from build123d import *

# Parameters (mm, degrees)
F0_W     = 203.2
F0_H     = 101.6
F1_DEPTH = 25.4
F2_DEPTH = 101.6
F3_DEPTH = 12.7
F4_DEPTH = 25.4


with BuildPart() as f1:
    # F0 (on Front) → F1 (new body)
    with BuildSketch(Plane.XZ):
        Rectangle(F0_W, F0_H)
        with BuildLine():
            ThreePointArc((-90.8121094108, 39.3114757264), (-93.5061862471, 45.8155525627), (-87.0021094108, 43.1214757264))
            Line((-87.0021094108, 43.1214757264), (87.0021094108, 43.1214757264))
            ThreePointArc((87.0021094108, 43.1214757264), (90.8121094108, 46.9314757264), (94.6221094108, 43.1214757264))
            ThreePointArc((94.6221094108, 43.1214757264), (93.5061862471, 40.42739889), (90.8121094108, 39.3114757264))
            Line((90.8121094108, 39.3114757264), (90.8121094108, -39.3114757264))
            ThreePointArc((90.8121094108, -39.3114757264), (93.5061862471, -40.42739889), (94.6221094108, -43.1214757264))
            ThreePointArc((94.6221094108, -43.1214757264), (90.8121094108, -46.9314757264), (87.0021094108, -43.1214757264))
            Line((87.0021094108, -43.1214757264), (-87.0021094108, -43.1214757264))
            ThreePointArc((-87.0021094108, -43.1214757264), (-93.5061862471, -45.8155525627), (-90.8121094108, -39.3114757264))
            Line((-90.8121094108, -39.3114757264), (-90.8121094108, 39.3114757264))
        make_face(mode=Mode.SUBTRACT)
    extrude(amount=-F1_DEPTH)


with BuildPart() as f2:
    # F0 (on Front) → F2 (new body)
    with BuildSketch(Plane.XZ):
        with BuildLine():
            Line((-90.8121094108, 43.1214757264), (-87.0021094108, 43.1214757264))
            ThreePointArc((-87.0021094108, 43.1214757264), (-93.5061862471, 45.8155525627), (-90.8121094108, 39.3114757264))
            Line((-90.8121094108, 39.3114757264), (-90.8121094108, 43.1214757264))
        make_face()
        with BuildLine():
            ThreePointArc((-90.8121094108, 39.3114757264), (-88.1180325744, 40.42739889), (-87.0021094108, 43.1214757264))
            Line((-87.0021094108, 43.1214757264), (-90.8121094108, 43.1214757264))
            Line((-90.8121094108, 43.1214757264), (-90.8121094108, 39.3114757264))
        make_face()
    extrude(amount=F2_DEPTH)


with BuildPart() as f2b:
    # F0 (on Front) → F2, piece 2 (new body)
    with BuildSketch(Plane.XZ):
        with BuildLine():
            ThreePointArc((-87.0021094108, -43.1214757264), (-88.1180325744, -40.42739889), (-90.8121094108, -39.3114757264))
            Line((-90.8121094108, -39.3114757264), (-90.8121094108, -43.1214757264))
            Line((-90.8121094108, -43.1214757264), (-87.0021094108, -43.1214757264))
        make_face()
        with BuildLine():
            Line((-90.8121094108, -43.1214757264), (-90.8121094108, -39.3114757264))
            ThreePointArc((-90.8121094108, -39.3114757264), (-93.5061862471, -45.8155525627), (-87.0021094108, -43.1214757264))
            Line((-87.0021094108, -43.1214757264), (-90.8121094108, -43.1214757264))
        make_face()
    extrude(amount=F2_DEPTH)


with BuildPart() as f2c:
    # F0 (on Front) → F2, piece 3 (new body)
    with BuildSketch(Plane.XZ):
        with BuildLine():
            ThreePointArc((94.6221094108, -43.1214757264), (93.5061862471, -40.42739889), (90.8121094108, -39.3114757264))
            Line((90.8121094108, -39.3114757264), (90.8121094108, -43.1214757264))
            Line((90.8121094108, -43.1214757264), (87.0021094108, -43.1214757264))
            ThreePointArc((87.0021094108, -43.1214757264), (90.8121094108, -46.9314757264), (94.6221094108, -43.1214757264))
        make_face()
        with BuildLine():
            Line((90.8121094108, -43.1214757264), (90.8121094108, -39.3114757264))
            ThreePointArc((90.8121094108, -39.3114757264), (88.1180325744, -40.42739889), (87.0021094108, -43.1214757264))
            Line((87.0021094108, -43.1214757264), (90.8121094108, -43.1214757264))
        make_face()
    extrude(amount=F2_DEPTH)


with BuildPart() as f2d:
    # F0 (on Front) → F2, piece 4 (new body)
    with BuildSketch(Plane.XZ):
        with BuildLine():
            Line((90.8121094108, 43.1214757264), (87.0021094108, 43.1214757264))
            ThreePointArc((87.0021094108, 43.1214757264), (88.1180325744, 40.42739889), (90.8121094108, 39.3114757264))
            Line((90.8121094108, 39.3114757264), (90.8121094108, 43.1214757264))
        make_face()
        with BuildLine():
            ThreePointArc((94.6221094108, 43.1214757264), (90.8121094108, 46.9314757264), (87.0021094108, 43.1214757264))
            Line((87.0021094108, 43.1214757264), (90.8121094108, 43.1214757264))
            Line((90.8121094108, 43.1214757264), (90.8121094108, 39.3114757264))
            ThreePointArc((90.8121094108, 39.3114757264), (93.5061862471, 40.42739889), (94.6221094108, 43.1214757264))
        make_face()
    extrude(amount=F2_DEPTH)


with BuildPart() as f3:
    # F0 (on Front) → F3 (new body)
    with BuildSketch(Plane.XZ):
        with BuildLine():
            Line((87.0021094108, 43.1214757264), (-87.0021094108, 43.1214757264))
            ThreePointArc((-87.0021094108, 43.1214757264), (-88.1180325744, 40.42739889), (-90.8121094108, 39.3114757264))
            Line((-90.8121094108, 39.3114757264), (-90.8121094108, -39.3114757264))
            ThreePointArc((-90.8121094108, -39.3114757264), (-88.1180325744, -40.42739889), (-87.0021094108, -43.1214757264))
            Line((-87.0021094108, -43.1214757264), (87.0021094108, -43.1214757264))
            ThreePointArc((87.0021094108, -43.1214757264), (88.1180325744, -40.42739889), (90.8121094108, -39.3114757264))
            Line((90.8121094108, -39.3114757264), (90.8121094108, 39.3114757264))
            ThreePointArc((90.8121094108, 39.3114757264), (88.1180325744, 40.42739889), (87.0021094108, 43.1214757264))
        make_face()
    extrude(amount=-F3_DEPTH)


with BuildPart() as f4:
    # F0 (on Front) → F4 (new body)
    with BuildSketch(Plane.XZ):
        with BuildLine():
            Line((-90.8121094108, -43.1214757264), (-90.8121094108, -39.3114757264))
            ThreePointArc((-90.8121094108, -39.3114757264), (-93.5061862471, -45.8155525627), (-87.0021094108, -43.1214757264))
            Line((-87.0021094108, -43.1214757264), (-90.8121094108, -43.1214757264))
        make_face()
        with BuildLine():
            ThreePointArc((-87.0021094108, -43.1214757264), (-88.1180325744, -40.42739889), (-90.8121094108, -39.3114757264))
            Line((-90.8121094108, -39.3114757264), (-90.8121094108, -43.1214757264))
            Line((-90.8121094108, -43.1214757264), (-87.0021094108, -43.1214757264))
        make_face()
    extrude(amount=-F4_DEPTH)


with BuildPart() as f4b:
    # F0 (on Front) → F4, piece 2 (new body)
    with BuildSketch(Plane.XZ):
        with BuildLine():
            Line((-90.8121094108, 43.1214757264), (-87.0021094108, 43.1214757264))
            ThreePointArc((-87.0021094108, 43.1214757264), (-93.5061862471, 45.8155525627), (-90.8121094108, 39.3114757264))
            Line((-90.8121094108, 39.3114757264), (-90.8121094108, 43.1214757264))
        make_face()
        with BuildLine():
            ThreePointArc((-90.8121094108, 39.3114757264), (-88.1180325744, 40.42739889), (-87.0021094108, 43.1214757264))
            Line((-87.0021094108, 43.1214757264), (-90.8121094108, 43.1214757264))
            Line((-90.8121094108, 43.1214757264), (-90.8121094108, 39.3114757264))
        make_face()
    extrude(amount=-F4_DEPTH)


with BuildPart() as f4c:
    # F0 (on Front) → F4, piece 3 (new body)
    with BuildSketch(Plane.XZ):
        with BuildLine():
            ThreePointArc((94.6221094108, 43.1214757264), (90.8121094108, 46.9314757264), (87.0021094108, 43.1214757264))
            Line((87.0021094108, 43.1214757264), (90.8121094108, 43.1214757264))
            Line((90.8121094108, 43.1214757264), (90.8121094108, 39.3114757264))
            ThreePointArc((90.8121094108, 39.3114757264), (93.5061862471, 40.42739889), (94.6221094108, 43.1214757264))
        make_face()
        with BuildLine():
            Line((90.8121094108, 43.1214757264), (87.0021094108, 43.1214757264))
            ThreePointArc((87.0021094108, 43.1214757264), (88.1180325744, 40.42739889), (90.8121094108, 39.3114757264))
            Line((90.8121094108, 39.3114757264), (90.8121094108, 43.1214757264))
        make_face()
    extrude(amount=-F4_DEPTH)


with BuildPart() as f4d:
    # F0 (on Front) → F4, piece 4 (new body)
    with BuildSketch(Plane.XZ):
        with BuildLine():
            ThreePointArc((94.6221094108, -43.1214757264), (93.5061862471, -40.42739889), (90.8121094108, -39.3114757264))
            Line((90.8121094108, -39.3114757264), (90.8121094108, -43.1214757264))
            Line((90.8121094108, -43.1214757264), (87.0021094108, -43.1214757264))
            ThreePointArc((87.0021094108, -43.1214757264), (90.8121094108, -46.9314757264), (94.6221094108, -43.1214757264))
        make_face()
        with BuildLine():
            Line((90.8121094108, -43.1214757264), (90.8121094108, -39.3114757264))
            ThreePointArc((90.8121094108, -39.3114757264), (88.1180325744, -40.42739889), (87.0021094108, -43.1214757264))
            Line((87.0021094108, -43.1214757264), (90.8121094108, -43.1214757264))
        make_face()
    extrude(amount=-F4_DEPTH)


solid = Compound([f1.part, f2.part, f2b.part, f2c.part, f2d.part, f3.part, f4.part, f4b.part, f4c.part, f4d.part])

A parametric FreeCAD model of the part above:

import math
import FreeCAD as App
import Part
import Sketcher

V = App.Vector
Q = App.Units.Quantity


def add_polygon(sketch, points):
    """Adds a closed chain of lines whose ends are joined by coincident constraints."""
    first, n = sketch.GeometryCount, len(points)
    for a, b in zip(points, points[1:] + points[:1]):
        sketch.addGeometry(Part.LineSegment(App.Vector(*a, 0), App.Vector(*b, 0)), False)
    for i in range(n):
        sketch.addConstraint(Sketcher.Constraint("Coincident", first + i, 2, first + (i + 1) % n, 1))

doc = App.newDocument("Part")
body = doc.addObject("PartDesign::Body", "Body")

sketch1 = body.newObject("Sketcher::SketchObject", "Sketch")
sketch1.AttachmentSupport = (doc.getObject("XZ_Plane"), [""])
sketch1.MapMode = "FlatFace"
add_polygon(sketch1, [(-101.6, 50.8), (-101.6, -50.8), (101.6, -50.8), (101.6, 50.8)])
sketch1.addGeometry(Part.LineSegment(V(-90.8, -39.3, 0), V(-90.8, 39.3, 0)), False)
sketch1.addGeometry(Part.ArcOfCircle(Part.Circle(V(-90.8, 43.1, 0), V(0, 0, 1), 3.8), math.radians(0), math.radians(270)), False)
sketch1.addGeometry(Part.LineSegment(V(-87, 43.1, 0), V(87, 43.1, 0)), False)
sketch1.addGeometry(Part.ArcOfCircle(Part.Circle(V(90.8, 43.1, 0), V(0, 0, 1), 3.8), math.radians(0), math.radians(180)), False)
sketch1.addGeometry(Part.ArcOfCircle(Part.Circle(V(90.8, 43.1, 0), V(0, 0, 1), 3.8), math.radians(-90), math.radians(0)), False)
sketch1.addGeometry(Part.LineSegment(V(90.8, 39.3, 0), V(90.8, -39.3, 0)), False)
sketch1.addGeometry(Part.ArcOfCircle(Part.Circle(V(90.8, -43.1, 0), V(0, 0, 1), 3.8), math.radians(0), math.radians(90)), False)
sketch1.addGeometry(Part.ArcOfCircle(Part.Circle(V(90.8, -43.1, 0), V(0, 0, 1), 3.8), math.radians(180), math.radians(360)), False)
sketch1.addGeometry(Part.LineSegment(V(87, -43.1, 0), V(-87, -43.1, 0)), False)
sketch1.addGeometry(Part.ArcOfCircle(Part.Circle(V(-90.8, -43.1, 0), V(0, 0, 1), 3.8), math.radians(90), math.radians(360)), False)
sketch1.addConstraint([
    Sketcher.Constraint("Coincident", 4, 2, 5, 2),
    Sketcher.Constraint("Coincident", 5, 1, 6, 1),
    Sketcher.Constraint("Coincident", 6, 2, 7, 2),
    Sketcher.Constraint("Tangent", 7, 1, 8, 2),
    Sketcher.Constraint("Coincident", 8, 1, 9, 1),
    Sketcher.Constraint("Coincident", 9, 2, 10, 2),
    Sketcher.Constraint("Tangent", 10, 1, 11, 2),
    Sketcher.Constraint("Coincident", 11, 1, 12, 1),
    Sketcher.Constraint("Coincident", 12, 2, 13, 2),
    Sketcher.Constraint("Coincident", 13, 1, 4, 1),
    Sketcher.Constraint("Vertical", 0),
    Sketcher.Constraint("Horizontal", 1),
    Sketcher.Constraint("Vertical", 2),
    Sketcher.Constraint("Horizontal", 3),
    Sketcher.Constraint("Vertical", 4),
    Sketcher.Constraint("Horizontal", 6),
    Sketcher.Constraint("Vertical", 9),
    Sketcher.Constraint("Horizontal", 12),
    Sketcher.Constraint("Equal", 5, 7),
    Sketcher.Constraint("Equal", 7, 8),
    Sketcher.Constraint("Equal", 8, 10),
    Sketcher.Constraint("Equal", 10, 11),
    Sketcher.Constraint("Equal", 11, 13),
    Sketcher.Constraint("Symmetric", 5, 3, 10, 3, -1, 1),
    Sketcher.Constraint("Symmetric", 7, 3, 13, 3, -1, 1),
    Sketcher.Constraint("Symmetric", 0, 2, 2, 2, -1, 1),
    Sketcher.Constraint("Symmetric", 5, 3, 7, 3, -2),
    Sketcher.Constraint("Horizontal", 8, 3, 5, 1),
    Sketcher.Constraint("Horizontal", 6, 2, 7, 1),
    Sketcher.Constraint("Horizontal", 13, 3, 10, 1),
    Sketcher.Constraint("Horizontal", 10, 1, 11, 1),
    Sketcher.Constraint("Vertical", 13, 3, 4, 2),
    Sketcher.Constraint("Vertical", 11, 3, 8, 1),
    Sketcher.Constraint("DistanceX", 1, 1, 1, 2, Q("8 in")),
    Sketcher.Constraint("DistanceY", 0, 2, 0, 1, Q("4 in")),
    Sketcher.Constraint("Radius", 5, Q("0.15 in")),
    Sketcher.Constraint("DistanceX", 6, 1, 6, 2, 174.004219),
    Sketcher.Constraint("DistanceY", 4, 1, 4, 2, 78.622951),
])
pad1 = body.newObject("PartDesign::Pad", "Pad")
pad1.Profile = sketch1
pad1.Length = Q("1 in")
pad1.Reversed = True
body2 = doc.addObject("PartDesign::Body", "Body001")

sketch2 = body2.newObject("Sketcher::SketchObject", "Sketch001")
sketch2.AttachmentSupport = (doc.getObject("XZ_Plane001"), [""])
sketch2.MapMode = "FlatFace"
sketch2.addGeometry([
    Part.ArcOfCircle(Part.Circle(V(-90.8, 43.1, 0), V(0, 0, 1), 3.8), math.radians(0), math.radians(270)),
    Part.ArcOfCircle(Part.Circle(V(-90.8, 43.1, 0), V(0, 0, 1), 3.8), math.radians(-90), math.radians(0)),
], False)
sketch2.addConstraint([
    Sketcher.Constraint("Tangent", 0, 1, 1, 2),
    Sketcher.Constraint("Coincident", 1, 1, 0, 2),
    Sketcher.Constraint("Horizontal", 1, 3, 0, 1),
    Sketcher.Constraint("Vertical", 0, 3, 1, 1),
    Sketcher.Constraint("Radius", 0, Q("0.15 in")),
    Sketcher.Constraint("DistanceX", 0, 3, -1, 1, 90.812109),
    Sketcher.Constraint("DistanceY", -1, 1, 0, 3, 43.121476),
])
pad2 = body2.newObject("PartDesign::Pad", "Pad001")
pad2.Profile = sketch2
pad2.Length = Q("4 in")
body3 = doc.addObject("PartDesign::Body", "Body002")

sketch3 = body3.newObject("Sketcher::SketchObject", "Sketch002")
sketch3.AttachmentSupport = (doc.getObject("XZ_Plane002"), [""])
sketch3.MapMode = "FlatFace"
sketch3.addGeometry([
    Part.ArcOfCircle(Part.Circle(V(-90.8, -43.1, 0), V(0, 0, 1), 3.8), math.radians(0), math.radians(90)),
    Part.ArcOfCircle(Part.Circle(V(-90.8, -43.1, 0), V(0, 0, 1), 3.8), math.radians(90), math.radians(360)),
], False)
sketch3.addConstraint([
    Sketcher.Constraint("Tangent", 0, 1, 1, 2),
    Sketcher.Constraint("Coincident", 1, 1, 0, 2),
    Sketcher.Constraint("Horizontal", 1, 3, 0, 1),
    Sketcher.Constraint("Vertical", 0, 3, 1, 1),
    Sketcher.Constraint("Radius", 0, Q("0.15 in")),
    Sketcher.Constraint("DistanceX", 0, 3, -1, 1, 90.812109),
    Sketcher.Constraint("DistanceY", 0, 3, -1, 1, 43.121476),
])
pad3 = body3.newObject("PartDesign::Pad", "Pad002")
pad3.Profile = sketch3
pad3.Length = Q("4 in")
body4 = doc.addObject("PartDesign::Body", "Body003")

sketch4 = body4.newObject("Sketcher::SketchObject", "Sketch003")
sketch4.AttachmentSupport = (doc.getObject("XZ_Plane003"), [""])
sketch4.MapMode = "FlatFace"
sketch4.addGeometry([
    Part.ArcOfCircle(Part.Circle(V(90.8, -43.1, 0), V(0, 0, 1), 3.8), math.radians(0), math.radians(90)),
    Part.ArcOfCircle(Part.Circle(V(90.8, -43.1, 0), V(0, 0, 1), 3.8), math.radians(90), math.radians(180)),
    Part.ArcOfCircle(Part.Circle(V(90.8, -43.1, 0), V(0, 0, 1), 3.8), math.radians(180), math.radians(360)),
], False)
sketch4.addConstraint([
    Sketcher.Constraint("Tangent", 0, 2, 1, 1),
    Sketcher.Constraint("Tangent", 1, 2, 2, 1),
    Sketcher.Constraint("Tangent", 2, 2, 0, 1),
    Sketcher.Constraint("Horizontal", 2, 3, 1, 2),
    Sketcher.Constraint("Horizontal", 1, 2, 2, 2),
    Sketcher.Constraint("Vertical", 2, 3, 0, 2),
    Sketcher.Constraint("Radius", 0, Q("0.15 in")),
    Sketcher.Constraint("DistanceX", -1, 1, 0, 3, 90.812109),
    Sketcher.Constraint("DistanceY", 0, 3, -1, 1, 43.121476),
])
pad4 = body4.newObject("PartDesign::Pad", "Pad003")
pad4.Profile = sketch4
pad4.Length = Q("4 in")
body5 = doc.addObject("PartDesign::Body", "Body004")

sketch5 = body5.newObject("Sketcher::SketchObject", "Sketch004")
sketch5.AttachmentSupport = (doc.getObject("XZ_Plane004"), [""])
sketch5.MapMode = "FlatFace"
sketch5.addGeometry([
    Part.ArcOfCircle(Part.Circle(V(90.8, 43.1, 0), V(0, 0, 1), 3.8), math.radians(180), math.radians(270)),
    Part.ArcOfCircle(Part.Circle(V(90.8, 43.1, 0), V(0, 0, 1), 3.8), math.radians(-90), math.radians(0)),
    Part.ArcOfCircle(Part.Circle(V(90.8, 43.1, 0), V(0, 0, 1), 3.8), math.radians(0), math.radians(180)),
], False)
sketch5.addConstraint([
    Sketcher.Constraint("Tangent", 0, 2, 1, 1),
    Sketcher.Constraint("Tangent", 1, 2, 2, 1),
    Sketcher.Constraint("Tangent", 2, 2, 0, 1),
    Sketcher.Constraint("Horizontal", 2, 3, 1, 2),
    Sketcher.Constraint("Horizontal", 1, 2, 2, 2),
    Sketcher.Constraint("Vertical", 2, 3, 0, 2),
    Sketcher.Constraint("Radius", 0, Q("0.15 in")),
    Sketcher.Constraint("DistanceX", -1, 1, 0, 3, 90.812109),
    Sketcher.Constraint("DistanceY", -1, 1, 0, 3, 43.121476),
])
pad5 = body5.newObject("PartDesign::Pad", "Pad004")
pad5.Profile = sketch5
pad5.Length = Q("4 in")
body6 = doc.addObject("PartDesign::Body", "Body005")

sketch6 = body6.newObject("Sketcher::SketchObject", "Sketch005")
sketch6.AttachmentSupport = (doc.getObject("XZ_Plane005"), [""])
sketch6.MapMode = "FlatFace"
sketch6.addGeometry([
    Part.LineSegment(V(87, 43.1, 0), V(-87, 43.1, 0)),
    Part.ArcOfCircle(Part.Circle(V(-90.8, 43.1, 0), V(0, 0, 1), 3.8), math.radians(-90), math.radians(0)),
    Part.LineSegment(V(-90.8, 39.3, 0), V(-90.8, -39.3, 0)),
    Part.ArcOfCircle(Part.Circle(V(-90.8, -43.1, 0), V(0, 0, 1), 3.8), math.radians(0), math.radians(90)),
    Part.LineSegment(V(-87, -43.1, 0), V(87, -43.1, 0)),
    Part.ArcOfCircle(Part.Circle(V(90.8, -43.1, 0), V(0, 0, 1), 3.8), math.radians(90), math.radians(180)),
    Part.LineSegment(V(90.8, -39.3, 0), V(90.8, 39.3, 0)),
    Part.ArcOfCircle(Part.Circle(V(90.8, 43.1, 0), V(0, 0, 1), 3.8), math.radians(180), math.radians(270)),
], False)
sketch6.addConstraint([
    Sketcher.Constraint("Coincident", 0, 2, 1, 2),
    Sketcher.Constraint("Coincident", 1, 1, 2, 1),
    Sketcher.Constraint("Coincident", 2, 2, 3, 2),
    Sketcher.Constraint("Coincident", 3, 1, 4, 1),
    Sketcher.Constraint("Coincident", 4, 2, 5, 2),
    Sketcher.Constraint("Coincident", 5, 1, 6, 1),
    Sketcher.Constraint("Coincident", 6, 2, 7, 2),
    Sketcher.Constraint("Coincident", 7, 1, 0, 1),
    Sketcher.Constraint("Horizontal", 0),
    Sketcher.Constraint("Vertical", 2),
    Sketcher.Constraint("Horizontal", 4),
    Sketcher.Constraint("Vertical", 6),
    Sketcher.Constraint("Equal", 1, 3),
    Sketcher.Constraint("Equal", 3, 5),
    Sketcher.Constraint("Equal", 5, 7),
    Sketcher.Constraint("Symmetric", 1, 3, 5, 3, -1, 1),
    Sketcher.Constraint("Symmetric", 3, 3, 7, 3, -1, 1),
    Sketcher.Constraint("Symmetric", 3, 3, 5, 3, -2),
    Sketcher.Constraint("Horizontal", 7, 3, 0, 2),
    Sketcher.Constraint("Horizontal", 5, 3, 3, 1),
    Sketcher.Constraint("Vertical", 3, 3, 1, 1),
    Sketcher.Constraint("Vertical", 7, 3, 5, 1),
    Sketcher.Constraint("Radius", 1, Q("0.15 in")),
    Sketcher.Constraint("DistanceX", 0, 2, 0, 1, 174.004219),
    Sketcher.Constraint("DistanceY", 2, 2, 2, 1, 78.622951),
])
pad6 = body6.newObject("PartDesign::Pad", "Pad005")
pad6.Profile = sketch6
pad6.Length = Q("0.5 in")
pad6.Reversed = True
body7 = doc.addObject("PartDesign::Body", "Body006")

sketch7 = body7.newObject("Sketcher::SketchObject", "Sketch006")
sketch7.AttachmentSupport = (doc.getObject("XZ_Plane006"), [""])
sketch7.MapMode = "FlatFace"
sketch7.addGeometry([
    Part.ArcOfCircle(Part.Circle(V(-90.8, -43.1, 0), V(0, 0, 1), 3.8), math.radians(90), math.radians(360)),
    Part.ArcOfCircle(Part.Circle(V(-90.8, -43.1, 0), V(0, 0, 1), 3.8), math.radians(0), math.radians(90)),
], False)
sketch7.addConstraint([
    Sketcher.Constraint("Tangent", 0, 1, 1, 2),
    Sketcher.Constraint("Coincident", 1, 1, 0, 2),
    Sketcher.Constraint("Horizontal", 0, 3, 1, 1),
    Sketcher.Constraint("Vertical", 1, 3, 0, 1),
    Sketcher.Constraint("Radius", 0, Q("0.15 in")),
    Sketcher.Constraint("DistanceX", 0, 3, -1, 1, 90.812109),
    Sketcher.Constraint("DistanceY", 0, 3, -1, 1, 43.121476),
])
pad7 = body7.newObject("PartDesign::Pad", "Pad006")
pad7.Profile = sketch7
pad7.Length = Q("1 in")
pad7.Reversed = True
body8 = doc.addObject("PartDesign::Body", "Body007")

sketch8 = body8.newObject("Sketcher::SketchObject", "Sketch007")
sketch8.AttachmentSupport = (doc.getObject("XZ_Plane007"), [""])
sketch8.MapMode = "FlatFace"
sketch8.addGeometry([
    Part.ArcOfCircle(Part.Circle(V(-90.8, 43.1, 0), V(0, 0, 1), 3.8), math.radians(0), math.radians(270)),
    Part.ArcOfCircle(Part.Circle(V(-90.8, 43.1, 0), V(0, 0, 1), 3.8), math.radians(-90), math.radians(0)),
], False)
sketch8.addConstraint([
    Sketcher.Constraint("Tangent", 0, 1, 1, 2),
    Sketcher.Constraint("Coincident", 1, 1, 0, 2),
    Sketcher.Constraint("Horizontal", 1, 3, 0, 1),
    Sketcher.Constraint("Vertical", 0, 3, 1, 1),
    Sketcher.Constraint("Radius", 0, Q("0.15 in")),
    Sketcher.Constraint("DistanceX", 0, 3, -1, 1, 90.812109),
    Sketcher.Constraint("DistanceY", -1, 1, 0, 3, 43.121476),
])
pad8 = body8.newObject("PartDesign::Pad", "Pad007")
pad8.Profile = sketch8
pad8.Length = Q("1 in")
pad8.Reversed = True
body9 = doc.addObject("PartDesign::Body", "Body008")

sketch9 = body9.newObject("Sketcher::SketchObject", "Sketch008")
sketch9.AttachmentSupport = (doc.getObject("XZ_Plane008"), [""])
sketch9.MapMode = "FlatFace"
sketch9.addGeometry([
    Part.ArcOfCircle(Part.Circle(V(90.8, 43.1, 0), V(0, 0, 1), 3.8), math.radians(0), math.radians(180)),
    Part.ArcOfCircle(Part.Circle(V(90.8, 43.1, 0), V(0, 0, 1), 3.8), math.radians(180), math.radians(270)),
    Part.ArcOfCircle(Part.Circle(V(90.8, 43.1, 0), V(0, 0, 1), 3.8), math.radians(-90), math.radians(0)),
], False)
sketch9.addConstraint([
    Sketcher.Constraint("Tangent", 0, 2, 1, 1),
    Sketcher.Constraint("Tangent", 1, 2, 2, 1),
    Sketcher.Constraint("Tangent", 2, 2, 0, 1),
    Sketcher.Constraint("Horizontal", 2, 3, 0, 2),
    Sketcher.Constraint("Horizontal", 0, 2, 2, 2),
    Sketcher.Constraint("Vertical", 2, 3, 1, 2),
    Sketcher.Constraint("Radius", 0, Q("0.15 in")),
    Sketcher.Constraint("DistanceX", -1, 1, 0, 3, 90.812109),
    Sketcher.Constraint("DistanceY", -1, 1, 0, 3, 43.121476),
])
pad9 = body9.newObject("PartDesign::Pad", "Pad008")
pad9.Profile = sketch9
pad9.Length = Q("1 in")
pad9.Reversed = True
body10 = doc.addObject("PartDesign::Body", "Body009")

sketch10 = body10.newObject("Sketcher::SketchObject", "Sketch009")
sketch10.AttachmentSupport = (doc.getObject("XZ_Plane009"), [""])
sketch10.MapMode = "FlatFace"
sketch10.addGeometry([
    Part.ArcOfCircle(Part.Circle(V(90.8, -43.1, 0), V(0, 0, 1), 3.8), math.radians(0), math.radians(90)),
    Part.ArcOfCircle(Part.Circle(V(90.8, -43.1, 0), V(0, 0, 1), 3.8), math.radians(90), math.radians(180)),
    Part.ArcOfCircle(Part.Circle(V(90.8, -43.1, 0), V(0, 0, 1), 3.8), math.radians(180), math.radians(360)),
], False)
sketch10.addConstraint([
    Sketcher.Constraint("Tangent", 0, 2, 1, 1),
    Sketcher.Constraint("Tangent", 1, 2, 2, 1),
    Sketcher.Constraint("Tangent", 2, 2, 0, 1),
    Sketcher.Constraint("Horizontal", 2, 3, 1, 2),
    Sketcher.Constraint("Horizontal", 1, 2, 2, 2),
    Sketcher.Constraint("Vertical", 2, 3, 0, 2),
    Sketcher.Constraint("Radius", 0, Q("0.15 in")),
    Sketcher.Constraint("DistanceX", -1, 1, 0, 3, 90.812109),
    Sketcher.Constraint("DistanceY", 0, 3, -1, 1, 43.121476),
])
pad10 = body10.newObject("PartDesign::Pad", "Pad009")
pad10.Profile = sketch10
pad10.Length = Q("1 in")
pad10.Reversed = True

doc.recompute()
